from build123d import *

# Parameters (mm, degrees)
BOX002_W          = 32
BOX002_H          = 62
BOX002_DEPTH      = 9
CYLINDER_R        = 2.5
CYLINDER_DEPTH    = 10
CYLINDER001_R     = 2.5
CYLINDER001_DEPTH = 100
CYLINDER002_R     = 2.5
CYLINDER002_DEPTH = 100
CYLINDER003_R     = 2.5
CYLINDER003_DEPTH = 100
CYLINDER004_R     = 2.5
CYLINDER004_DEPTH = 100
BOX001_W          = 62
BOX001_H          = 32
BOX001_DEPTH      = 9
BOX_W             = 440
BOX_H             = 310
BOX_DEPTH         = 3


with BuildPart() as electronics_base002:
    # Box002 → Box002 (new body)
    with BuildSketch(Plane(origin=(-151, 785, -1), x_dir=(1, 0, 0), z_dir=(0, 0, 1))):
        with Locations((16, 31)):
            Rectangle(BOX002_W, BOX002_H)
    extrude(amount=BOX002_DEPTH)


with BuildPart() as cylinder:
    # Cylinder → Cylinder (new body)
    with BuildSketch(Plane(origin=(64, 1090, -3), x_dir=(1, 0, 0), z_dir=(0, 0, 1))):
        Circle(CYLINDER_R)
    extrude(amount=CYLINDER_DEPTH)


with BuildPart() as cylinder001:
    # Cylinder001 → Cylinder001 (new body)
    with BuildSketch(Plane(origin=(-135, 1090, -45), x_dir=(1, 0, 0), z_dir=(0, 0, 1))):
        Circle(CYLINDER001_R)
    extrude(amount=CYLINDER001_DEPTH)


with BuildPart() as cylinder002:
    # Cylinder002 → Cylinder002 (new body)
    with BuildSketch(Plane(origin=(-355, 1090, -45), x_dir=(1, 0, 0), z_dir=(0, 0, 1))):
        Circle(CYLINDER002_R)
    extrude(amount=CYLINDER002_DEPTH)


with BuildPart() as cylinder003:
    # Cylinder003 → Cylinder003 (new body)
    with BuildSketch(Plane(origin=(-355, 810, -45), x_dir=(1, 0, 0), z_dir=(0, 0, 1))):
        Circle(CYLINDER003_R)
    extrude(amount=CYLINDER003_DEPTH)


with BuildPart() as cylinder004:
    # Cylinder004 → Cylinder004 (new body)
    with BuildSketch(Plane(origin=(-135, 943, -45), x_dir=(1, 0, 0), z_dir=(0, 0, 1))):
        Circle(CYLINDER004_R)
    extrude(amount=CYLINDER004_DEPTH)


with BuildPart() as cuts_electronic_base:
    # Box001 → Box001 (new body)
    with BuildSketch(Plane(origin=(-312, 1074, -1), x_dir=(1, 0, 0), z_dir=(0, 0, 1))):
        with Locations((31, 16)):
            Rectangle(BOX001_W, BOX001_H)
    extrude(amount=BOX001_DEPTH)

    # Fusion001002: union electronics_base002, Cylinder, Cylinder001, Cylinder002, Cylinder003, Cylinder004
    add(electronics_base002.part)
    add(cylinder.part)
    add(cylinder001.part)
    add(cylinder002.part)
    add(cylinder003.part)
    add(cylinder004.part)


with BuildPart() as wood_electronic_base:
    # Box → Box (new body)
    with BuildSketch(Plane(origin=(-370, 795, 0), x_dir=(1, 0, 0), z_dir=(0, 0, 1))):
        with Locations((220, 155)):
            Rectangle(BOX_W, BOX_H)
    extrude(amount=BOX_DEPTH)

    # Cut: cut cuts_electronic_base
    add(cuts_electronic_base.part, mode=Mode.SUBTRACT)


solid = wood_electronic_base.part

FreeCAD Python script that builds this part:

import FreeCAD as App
import Part
import Sketcher
from FreeCAD import Vector


def add_polygon(sketch, points):
    """Adds a closed chain of lines whose ends are joined by coincident constraints."""
    first, n = sketch.GeometryCount, len(points)
    for a, b in zip(points, points[1:] + points[:1]):
        sketch.addGeometry(Part.LineSegment(App.Vector(*a, 0), App.Vector(*b, 0)), False)
    for i in range(n):
        sketch.addConstraint(Sketcher.Constraint("Coincident", first + i, 2, first + (i + 1) % n, 1))

doc = App.newDocument("Part")
body = doc.addObject("PartDesign::Body", "Body")

# Sketch on XY plane
sketch1 = body.newObject("Sketcher::SketchObject", "Sketch")
sketch1.AttachmentSupport = (doc.getObject("XY_Plane"), [""])
sketch1.MapMode = "FlatFace"
sketch1.AttachmentOffset = App.Placement(Vector(0, 0, -1), App.Rotation())
add_polygon(sketch1, [(-151, 847), (-151, 785), (-119, 785), (-119, 847)])  # lines 0-3
sketch1.addConstraint(Sketcher.Constraint("Vertical", 0))
sketch1.addConstraint(Sketcher.Constraint("Horizontal", 1))
sketch1.addConstraint(Sketcher.Constraint("Vertical", 2))
sketch1.addConstraint(Sketcher.Constraint("Horizontal", 3))
sketch1.addConstraint(Sketcher.Constraint("DistanceX", 1, 1, 1, 2, 32.0))
sketch1.addConstraint(Sketcher.Constraint("DistanceY", 0, 2, 0, 1, 62.0))
sketch1.addConstraint(Sketcher.Constraint("DistanceX", 0, 2, -1, 1, 151.0))
sketch1.addConstraint(Sketcher.Constraint("DistanceY", -1, 1, 0, 2, 785.0))
pad1 = body.newObject("PartDesign::Pad", "Pad")
pad1.Profile = sketch1
pad1.Length = 9
body2 = doc.addObject("PartDesign::Body", "Body001")

# Sketch on XY plane
sketch2 = body2.newObject("Sketcher::SketchObject", "Sketch001")
sketch2.AttachmentSupport = (doc.getObject("XY_Plane001"), [""])
sketch2.MapMode = "FlatFace"
sketch2.AttachmentOffset = App.Placement(Vector(0, 0, -3), App.Rotation())
sketch2.addGeometry(Part.Circle(Vector(64, 1090, 0), Vector(0, 0, 1), 2.5), False)
sketch2.addConstraint(Sketcher.Constraint("Diameter", 0, 5.0))
sketch2.addConstraint(Sketcher.Constraint("DistanceX", -1, 1, 0, 3, 64.0))
sketch2.addConstraint(Sketcher.Constraint("DistanceY", -1, 1, 0, 3, 1090.0))
pad2 = body2.newObject("PartDesign::Pad", "Pad001")
pad2.Profile = sketch2
pad2.Length = 10
body3 = doc.addObject("PartDesign::Body", "Body002")

# Sketch on XY plane
sketch3 = body3.newObject("Sketcher::SketchObject", "Sketch002")
sketch3.AttachmentSupport = (doc.getObject("XY_Plane002"), [""])
sketch3.MapMode = "FlatFace"
sketch3.AttachmentOffset = App.Placement(Vector(0, 0, -45), App.Rotation())
sketch3.addGeometry(Part.Circle(Vector(-135, 1090, 0), Vector(0, 0, 1), 2.5), False)
sketch3.addConstraint(Sketcher.Constraint("Diameter", 0, 5.0))
sketch3.addConstraint(Sketcher.Constraint("DistanceX", 0, 3, -1, 1, 135.0))
sketch3.addConstraint(Sketcher.Constraint("DistanceY", -1, 1, 0, 3, 1090.0))
pad3 = body3.newObject("PartDesign::Pad", "Pad002")
pad3.Profile = sketch3
pad3.Length = 100
body4 = doc.addObject("PartDesign::Body", "Body003")

# Sketch on XY plane
sketch4 = body4.newObject("Sketcher::SketchObject", "Sketch003")
sketch4.AttachmentSupport = (doc.getObject("XY_Plane003"), [""])
sketch4.MapMode = "FlatFace"
sketch4.AttachmentOffset = App.Placement(Vector(0, 0, -45), App.Rotation())
sketch4.addGeometry(Part.Circle(Vector(-355, 1090, 0), Vector(0, 0, 1), 2.5), False)
sketch4.addConstraint(Sketcher.Constraint("Diameter", 0, 5.0))
sketch4.addConstraint(Sketcher.Constraint("DistanceX", 0, 3, -1, 1, 355.0))
sketch4.addConstraint(Sketcher.Constraint("DistanceY", -1, 1, 0, 3, 1090.0))
pad4 = body4.newObject("PartDesign::Pad", "Pad003")
pad4.Profile = sketch4
pad4.Length = 100
body5 = doc.addObject("PartDesign::Body", "Body004")

# Sketch on XY plane
sketch5 = body5.newObject("Sketcher::SketchObject", "Sketch004")
sketch5.AttachmentSupport = (doc.getObject("XY_Plane004"), [""])
sketch5.MapMode = "FlatFace"
sketch5.AttachmentOffset = App.Placement(Vector(0, 0, -45), App.Rotation())
sketch5.addGeometry(Part.Circle(Vector(-355, 810, 0), Vector(0, 0, 1), 2.5), False)
sketch5.addConstraint(Sketcher.Constraint("Diameter", 0, 5.0))
sketch5.addConstraint(Sketcher.Constraint("DistanceX", 0, 3, -1, 1, 355.0))
sketch5.addConstraint(Sketcher.Constraint("DistanceY", -1, 1, 0, 3, 810.0))
pad5 = body5.newObject("PartDesign::Pad", "Pad004")
pad5.Profile = sketch5
pad5.Length = 100
body6 = doc.addObject("PartDesign::Body", "Body005")

# Sketch on XY plane
sketch6 = body6.newObject("Sketcher::SketchObject", "Sketch005")
sketch6.AttachmentSupport = (doc.getObject("XY_Plane005"), [""])
sketch6.MapMode = "FlatFace"
sketch6.AttachmentOffset = App.Placement(Vector(0, 0, -45), App.Rotation())
sketch6.addGeometry(Part.Circle(Vector(-135, 943, 0), Vector(0, 0, 1), 2.5), False)
sketch6.addConstraint(Sketcher.Constraint("Diameter", 0, 5.0))
sketch6.addConstraint(Sketcher.Constraint("DistanceX", 0, 3, -1, 1, 135.0))
sketch6.addConstraint(Sketcher.Constraint("DistanceY", -1, 1, 0, 3, 943.0))
pad6 = body6.newObject("PartDesign::Pad", "Pad005")
pad6.Profile = sketch6
pad6.Length = 100
body7 = doc.addObject("PartDesign::Body", "Body006")
body7.AllowCompound = True

# Sketch on XY plane
sketch7 = body7.newObject("Sketcher::SketchObject", "Sketch006")
sketch7.AttachmentSupport = (doc.getObject("XY_Plane006"), [""])
sketch7.MapMode = "FlatFace"
sketch7.AttachmentOffset = App.Placement(Vector(0, 0, -1), App.Rotation())
add_polygon(sketch7, [(-312, 1106), (-312, 1074), (-250, 1074), (-250, 1106)])  # lines 0-3
sketch7.addConstraint(Sketcher.Constraint("Vertical", 0))
sketch7.addConstraint(Sketcher.Constraint("Horizontal", 1))
sketch7.addConstraint(Sketcher.Constraint("Vertical", 2))
sketch7.addConstraint(Sketcher.Constraint("Horizontal", 3))
sketch7.addConstraint(Sketcher.Constraint("DistanceX", 1, 1, 1, 2, 62.0))
sketch7.addConstraint(Sketcher.Constraint("DistanceY", 0, 2, 0, 1, 32.0))
sketch7.addConstraint(Sketcher.Constraint("DistanceX", 0, 2, -1, 1, 312.0))
sketch7.addConstraint(Sketcher.Constraint("DistanceY", -1, 1, 0, 2, 1074.0))
pad7 = body7.newObject("PartDesign::Pad", "Pad006")
pad7.Profile = sketch7
pad7.Length = 9
doc.recompute()

boolean = body7.newObject("PartDesign::Boolean", "Boolean")
boolean.Type = "Fuse"
boolean.addObjects([body])
doc.recompute()

boolean2 = body7.newObject("PartDesign::Boolean", "Boolean001")
boolean2.Type = "Fuse"
boolean2.addObjects([body2])
doc.recompute()

boolean3 = body7.newObject("PartDesign::Boolean", "Boolean002")
boolean3.Type = "Fuse"
boolean3.addObjects([body3])
doc.recompute()

boolean4 = body7.newObject("PartDesign::Boolean", "Boolean003")
boolean4.Type = "Fuse"
boolean4.addObjects([body4])
doc.recompute()

boolean5 = body7.newObject("PartDesign::Boolean", "Boolean004")
boolean5.Type = "Fuse"
boolean5.addObjects([body5])
doc.recompute()

boolean6 = body7.newObject("PartDesign::Boolean", "Boolean005")
boolean6.Type = "Fuse"
boolean6.addObjects([body6])
body8 = doc.addObject("PartDesign::Body", "Body007")

# Sketch on XY plane
sketch8 = body8.newObject("Sketcher::SketchObject", "Sketch007")
sketch8.AttachmentSupport = (doc.getObject("XY_Plane007"), [""])
sketch8.MapMode = "FlatFace"
add_polygon(sketch8, [(-370, 1105), (-370, 795), (70, 795), (70, 1105)])  # lines 0-3
sketch8.addConstraint(Sketcher.Constraint("Vertical", 0))
sketch8.addConstraint(Sketcher.Constraint("Horizontal", 1))
sketch8.addConstraint(Sketcher.Constraint("Vertical", 2))
sketch8.addConstraint(Sketcher.Constraint("Horizontal", 3))
sketch8.addConstraint(Sketcher.Constraint("DistanceX", 1, 1, 1, 2, 440.0))
sketch8.addConstraint(Sketcher.Constraint("DistanceY", 0, 2, 0, 1, 310.0))
sketch8.addConstraint(Sketcher.Constraint("DistanceX", 0, 2, -1, 1, 370.0))
sketch8.addConstraint(Sketcher.Constraint("DistanceY", -1, 1, 0, 2, 795.0))
pad8 = body8.newObject("PartDesign::Pad", "Pad007")
pad8.Profile = sketch8
pad8.Length = 3
doc.recompute()

boolean7 = body8.newObject("PartDesign::Boolean", "Boolean006")
boolean7.Type = "Cut"
boolean7.addObjects([body7])

doc.recompute()
